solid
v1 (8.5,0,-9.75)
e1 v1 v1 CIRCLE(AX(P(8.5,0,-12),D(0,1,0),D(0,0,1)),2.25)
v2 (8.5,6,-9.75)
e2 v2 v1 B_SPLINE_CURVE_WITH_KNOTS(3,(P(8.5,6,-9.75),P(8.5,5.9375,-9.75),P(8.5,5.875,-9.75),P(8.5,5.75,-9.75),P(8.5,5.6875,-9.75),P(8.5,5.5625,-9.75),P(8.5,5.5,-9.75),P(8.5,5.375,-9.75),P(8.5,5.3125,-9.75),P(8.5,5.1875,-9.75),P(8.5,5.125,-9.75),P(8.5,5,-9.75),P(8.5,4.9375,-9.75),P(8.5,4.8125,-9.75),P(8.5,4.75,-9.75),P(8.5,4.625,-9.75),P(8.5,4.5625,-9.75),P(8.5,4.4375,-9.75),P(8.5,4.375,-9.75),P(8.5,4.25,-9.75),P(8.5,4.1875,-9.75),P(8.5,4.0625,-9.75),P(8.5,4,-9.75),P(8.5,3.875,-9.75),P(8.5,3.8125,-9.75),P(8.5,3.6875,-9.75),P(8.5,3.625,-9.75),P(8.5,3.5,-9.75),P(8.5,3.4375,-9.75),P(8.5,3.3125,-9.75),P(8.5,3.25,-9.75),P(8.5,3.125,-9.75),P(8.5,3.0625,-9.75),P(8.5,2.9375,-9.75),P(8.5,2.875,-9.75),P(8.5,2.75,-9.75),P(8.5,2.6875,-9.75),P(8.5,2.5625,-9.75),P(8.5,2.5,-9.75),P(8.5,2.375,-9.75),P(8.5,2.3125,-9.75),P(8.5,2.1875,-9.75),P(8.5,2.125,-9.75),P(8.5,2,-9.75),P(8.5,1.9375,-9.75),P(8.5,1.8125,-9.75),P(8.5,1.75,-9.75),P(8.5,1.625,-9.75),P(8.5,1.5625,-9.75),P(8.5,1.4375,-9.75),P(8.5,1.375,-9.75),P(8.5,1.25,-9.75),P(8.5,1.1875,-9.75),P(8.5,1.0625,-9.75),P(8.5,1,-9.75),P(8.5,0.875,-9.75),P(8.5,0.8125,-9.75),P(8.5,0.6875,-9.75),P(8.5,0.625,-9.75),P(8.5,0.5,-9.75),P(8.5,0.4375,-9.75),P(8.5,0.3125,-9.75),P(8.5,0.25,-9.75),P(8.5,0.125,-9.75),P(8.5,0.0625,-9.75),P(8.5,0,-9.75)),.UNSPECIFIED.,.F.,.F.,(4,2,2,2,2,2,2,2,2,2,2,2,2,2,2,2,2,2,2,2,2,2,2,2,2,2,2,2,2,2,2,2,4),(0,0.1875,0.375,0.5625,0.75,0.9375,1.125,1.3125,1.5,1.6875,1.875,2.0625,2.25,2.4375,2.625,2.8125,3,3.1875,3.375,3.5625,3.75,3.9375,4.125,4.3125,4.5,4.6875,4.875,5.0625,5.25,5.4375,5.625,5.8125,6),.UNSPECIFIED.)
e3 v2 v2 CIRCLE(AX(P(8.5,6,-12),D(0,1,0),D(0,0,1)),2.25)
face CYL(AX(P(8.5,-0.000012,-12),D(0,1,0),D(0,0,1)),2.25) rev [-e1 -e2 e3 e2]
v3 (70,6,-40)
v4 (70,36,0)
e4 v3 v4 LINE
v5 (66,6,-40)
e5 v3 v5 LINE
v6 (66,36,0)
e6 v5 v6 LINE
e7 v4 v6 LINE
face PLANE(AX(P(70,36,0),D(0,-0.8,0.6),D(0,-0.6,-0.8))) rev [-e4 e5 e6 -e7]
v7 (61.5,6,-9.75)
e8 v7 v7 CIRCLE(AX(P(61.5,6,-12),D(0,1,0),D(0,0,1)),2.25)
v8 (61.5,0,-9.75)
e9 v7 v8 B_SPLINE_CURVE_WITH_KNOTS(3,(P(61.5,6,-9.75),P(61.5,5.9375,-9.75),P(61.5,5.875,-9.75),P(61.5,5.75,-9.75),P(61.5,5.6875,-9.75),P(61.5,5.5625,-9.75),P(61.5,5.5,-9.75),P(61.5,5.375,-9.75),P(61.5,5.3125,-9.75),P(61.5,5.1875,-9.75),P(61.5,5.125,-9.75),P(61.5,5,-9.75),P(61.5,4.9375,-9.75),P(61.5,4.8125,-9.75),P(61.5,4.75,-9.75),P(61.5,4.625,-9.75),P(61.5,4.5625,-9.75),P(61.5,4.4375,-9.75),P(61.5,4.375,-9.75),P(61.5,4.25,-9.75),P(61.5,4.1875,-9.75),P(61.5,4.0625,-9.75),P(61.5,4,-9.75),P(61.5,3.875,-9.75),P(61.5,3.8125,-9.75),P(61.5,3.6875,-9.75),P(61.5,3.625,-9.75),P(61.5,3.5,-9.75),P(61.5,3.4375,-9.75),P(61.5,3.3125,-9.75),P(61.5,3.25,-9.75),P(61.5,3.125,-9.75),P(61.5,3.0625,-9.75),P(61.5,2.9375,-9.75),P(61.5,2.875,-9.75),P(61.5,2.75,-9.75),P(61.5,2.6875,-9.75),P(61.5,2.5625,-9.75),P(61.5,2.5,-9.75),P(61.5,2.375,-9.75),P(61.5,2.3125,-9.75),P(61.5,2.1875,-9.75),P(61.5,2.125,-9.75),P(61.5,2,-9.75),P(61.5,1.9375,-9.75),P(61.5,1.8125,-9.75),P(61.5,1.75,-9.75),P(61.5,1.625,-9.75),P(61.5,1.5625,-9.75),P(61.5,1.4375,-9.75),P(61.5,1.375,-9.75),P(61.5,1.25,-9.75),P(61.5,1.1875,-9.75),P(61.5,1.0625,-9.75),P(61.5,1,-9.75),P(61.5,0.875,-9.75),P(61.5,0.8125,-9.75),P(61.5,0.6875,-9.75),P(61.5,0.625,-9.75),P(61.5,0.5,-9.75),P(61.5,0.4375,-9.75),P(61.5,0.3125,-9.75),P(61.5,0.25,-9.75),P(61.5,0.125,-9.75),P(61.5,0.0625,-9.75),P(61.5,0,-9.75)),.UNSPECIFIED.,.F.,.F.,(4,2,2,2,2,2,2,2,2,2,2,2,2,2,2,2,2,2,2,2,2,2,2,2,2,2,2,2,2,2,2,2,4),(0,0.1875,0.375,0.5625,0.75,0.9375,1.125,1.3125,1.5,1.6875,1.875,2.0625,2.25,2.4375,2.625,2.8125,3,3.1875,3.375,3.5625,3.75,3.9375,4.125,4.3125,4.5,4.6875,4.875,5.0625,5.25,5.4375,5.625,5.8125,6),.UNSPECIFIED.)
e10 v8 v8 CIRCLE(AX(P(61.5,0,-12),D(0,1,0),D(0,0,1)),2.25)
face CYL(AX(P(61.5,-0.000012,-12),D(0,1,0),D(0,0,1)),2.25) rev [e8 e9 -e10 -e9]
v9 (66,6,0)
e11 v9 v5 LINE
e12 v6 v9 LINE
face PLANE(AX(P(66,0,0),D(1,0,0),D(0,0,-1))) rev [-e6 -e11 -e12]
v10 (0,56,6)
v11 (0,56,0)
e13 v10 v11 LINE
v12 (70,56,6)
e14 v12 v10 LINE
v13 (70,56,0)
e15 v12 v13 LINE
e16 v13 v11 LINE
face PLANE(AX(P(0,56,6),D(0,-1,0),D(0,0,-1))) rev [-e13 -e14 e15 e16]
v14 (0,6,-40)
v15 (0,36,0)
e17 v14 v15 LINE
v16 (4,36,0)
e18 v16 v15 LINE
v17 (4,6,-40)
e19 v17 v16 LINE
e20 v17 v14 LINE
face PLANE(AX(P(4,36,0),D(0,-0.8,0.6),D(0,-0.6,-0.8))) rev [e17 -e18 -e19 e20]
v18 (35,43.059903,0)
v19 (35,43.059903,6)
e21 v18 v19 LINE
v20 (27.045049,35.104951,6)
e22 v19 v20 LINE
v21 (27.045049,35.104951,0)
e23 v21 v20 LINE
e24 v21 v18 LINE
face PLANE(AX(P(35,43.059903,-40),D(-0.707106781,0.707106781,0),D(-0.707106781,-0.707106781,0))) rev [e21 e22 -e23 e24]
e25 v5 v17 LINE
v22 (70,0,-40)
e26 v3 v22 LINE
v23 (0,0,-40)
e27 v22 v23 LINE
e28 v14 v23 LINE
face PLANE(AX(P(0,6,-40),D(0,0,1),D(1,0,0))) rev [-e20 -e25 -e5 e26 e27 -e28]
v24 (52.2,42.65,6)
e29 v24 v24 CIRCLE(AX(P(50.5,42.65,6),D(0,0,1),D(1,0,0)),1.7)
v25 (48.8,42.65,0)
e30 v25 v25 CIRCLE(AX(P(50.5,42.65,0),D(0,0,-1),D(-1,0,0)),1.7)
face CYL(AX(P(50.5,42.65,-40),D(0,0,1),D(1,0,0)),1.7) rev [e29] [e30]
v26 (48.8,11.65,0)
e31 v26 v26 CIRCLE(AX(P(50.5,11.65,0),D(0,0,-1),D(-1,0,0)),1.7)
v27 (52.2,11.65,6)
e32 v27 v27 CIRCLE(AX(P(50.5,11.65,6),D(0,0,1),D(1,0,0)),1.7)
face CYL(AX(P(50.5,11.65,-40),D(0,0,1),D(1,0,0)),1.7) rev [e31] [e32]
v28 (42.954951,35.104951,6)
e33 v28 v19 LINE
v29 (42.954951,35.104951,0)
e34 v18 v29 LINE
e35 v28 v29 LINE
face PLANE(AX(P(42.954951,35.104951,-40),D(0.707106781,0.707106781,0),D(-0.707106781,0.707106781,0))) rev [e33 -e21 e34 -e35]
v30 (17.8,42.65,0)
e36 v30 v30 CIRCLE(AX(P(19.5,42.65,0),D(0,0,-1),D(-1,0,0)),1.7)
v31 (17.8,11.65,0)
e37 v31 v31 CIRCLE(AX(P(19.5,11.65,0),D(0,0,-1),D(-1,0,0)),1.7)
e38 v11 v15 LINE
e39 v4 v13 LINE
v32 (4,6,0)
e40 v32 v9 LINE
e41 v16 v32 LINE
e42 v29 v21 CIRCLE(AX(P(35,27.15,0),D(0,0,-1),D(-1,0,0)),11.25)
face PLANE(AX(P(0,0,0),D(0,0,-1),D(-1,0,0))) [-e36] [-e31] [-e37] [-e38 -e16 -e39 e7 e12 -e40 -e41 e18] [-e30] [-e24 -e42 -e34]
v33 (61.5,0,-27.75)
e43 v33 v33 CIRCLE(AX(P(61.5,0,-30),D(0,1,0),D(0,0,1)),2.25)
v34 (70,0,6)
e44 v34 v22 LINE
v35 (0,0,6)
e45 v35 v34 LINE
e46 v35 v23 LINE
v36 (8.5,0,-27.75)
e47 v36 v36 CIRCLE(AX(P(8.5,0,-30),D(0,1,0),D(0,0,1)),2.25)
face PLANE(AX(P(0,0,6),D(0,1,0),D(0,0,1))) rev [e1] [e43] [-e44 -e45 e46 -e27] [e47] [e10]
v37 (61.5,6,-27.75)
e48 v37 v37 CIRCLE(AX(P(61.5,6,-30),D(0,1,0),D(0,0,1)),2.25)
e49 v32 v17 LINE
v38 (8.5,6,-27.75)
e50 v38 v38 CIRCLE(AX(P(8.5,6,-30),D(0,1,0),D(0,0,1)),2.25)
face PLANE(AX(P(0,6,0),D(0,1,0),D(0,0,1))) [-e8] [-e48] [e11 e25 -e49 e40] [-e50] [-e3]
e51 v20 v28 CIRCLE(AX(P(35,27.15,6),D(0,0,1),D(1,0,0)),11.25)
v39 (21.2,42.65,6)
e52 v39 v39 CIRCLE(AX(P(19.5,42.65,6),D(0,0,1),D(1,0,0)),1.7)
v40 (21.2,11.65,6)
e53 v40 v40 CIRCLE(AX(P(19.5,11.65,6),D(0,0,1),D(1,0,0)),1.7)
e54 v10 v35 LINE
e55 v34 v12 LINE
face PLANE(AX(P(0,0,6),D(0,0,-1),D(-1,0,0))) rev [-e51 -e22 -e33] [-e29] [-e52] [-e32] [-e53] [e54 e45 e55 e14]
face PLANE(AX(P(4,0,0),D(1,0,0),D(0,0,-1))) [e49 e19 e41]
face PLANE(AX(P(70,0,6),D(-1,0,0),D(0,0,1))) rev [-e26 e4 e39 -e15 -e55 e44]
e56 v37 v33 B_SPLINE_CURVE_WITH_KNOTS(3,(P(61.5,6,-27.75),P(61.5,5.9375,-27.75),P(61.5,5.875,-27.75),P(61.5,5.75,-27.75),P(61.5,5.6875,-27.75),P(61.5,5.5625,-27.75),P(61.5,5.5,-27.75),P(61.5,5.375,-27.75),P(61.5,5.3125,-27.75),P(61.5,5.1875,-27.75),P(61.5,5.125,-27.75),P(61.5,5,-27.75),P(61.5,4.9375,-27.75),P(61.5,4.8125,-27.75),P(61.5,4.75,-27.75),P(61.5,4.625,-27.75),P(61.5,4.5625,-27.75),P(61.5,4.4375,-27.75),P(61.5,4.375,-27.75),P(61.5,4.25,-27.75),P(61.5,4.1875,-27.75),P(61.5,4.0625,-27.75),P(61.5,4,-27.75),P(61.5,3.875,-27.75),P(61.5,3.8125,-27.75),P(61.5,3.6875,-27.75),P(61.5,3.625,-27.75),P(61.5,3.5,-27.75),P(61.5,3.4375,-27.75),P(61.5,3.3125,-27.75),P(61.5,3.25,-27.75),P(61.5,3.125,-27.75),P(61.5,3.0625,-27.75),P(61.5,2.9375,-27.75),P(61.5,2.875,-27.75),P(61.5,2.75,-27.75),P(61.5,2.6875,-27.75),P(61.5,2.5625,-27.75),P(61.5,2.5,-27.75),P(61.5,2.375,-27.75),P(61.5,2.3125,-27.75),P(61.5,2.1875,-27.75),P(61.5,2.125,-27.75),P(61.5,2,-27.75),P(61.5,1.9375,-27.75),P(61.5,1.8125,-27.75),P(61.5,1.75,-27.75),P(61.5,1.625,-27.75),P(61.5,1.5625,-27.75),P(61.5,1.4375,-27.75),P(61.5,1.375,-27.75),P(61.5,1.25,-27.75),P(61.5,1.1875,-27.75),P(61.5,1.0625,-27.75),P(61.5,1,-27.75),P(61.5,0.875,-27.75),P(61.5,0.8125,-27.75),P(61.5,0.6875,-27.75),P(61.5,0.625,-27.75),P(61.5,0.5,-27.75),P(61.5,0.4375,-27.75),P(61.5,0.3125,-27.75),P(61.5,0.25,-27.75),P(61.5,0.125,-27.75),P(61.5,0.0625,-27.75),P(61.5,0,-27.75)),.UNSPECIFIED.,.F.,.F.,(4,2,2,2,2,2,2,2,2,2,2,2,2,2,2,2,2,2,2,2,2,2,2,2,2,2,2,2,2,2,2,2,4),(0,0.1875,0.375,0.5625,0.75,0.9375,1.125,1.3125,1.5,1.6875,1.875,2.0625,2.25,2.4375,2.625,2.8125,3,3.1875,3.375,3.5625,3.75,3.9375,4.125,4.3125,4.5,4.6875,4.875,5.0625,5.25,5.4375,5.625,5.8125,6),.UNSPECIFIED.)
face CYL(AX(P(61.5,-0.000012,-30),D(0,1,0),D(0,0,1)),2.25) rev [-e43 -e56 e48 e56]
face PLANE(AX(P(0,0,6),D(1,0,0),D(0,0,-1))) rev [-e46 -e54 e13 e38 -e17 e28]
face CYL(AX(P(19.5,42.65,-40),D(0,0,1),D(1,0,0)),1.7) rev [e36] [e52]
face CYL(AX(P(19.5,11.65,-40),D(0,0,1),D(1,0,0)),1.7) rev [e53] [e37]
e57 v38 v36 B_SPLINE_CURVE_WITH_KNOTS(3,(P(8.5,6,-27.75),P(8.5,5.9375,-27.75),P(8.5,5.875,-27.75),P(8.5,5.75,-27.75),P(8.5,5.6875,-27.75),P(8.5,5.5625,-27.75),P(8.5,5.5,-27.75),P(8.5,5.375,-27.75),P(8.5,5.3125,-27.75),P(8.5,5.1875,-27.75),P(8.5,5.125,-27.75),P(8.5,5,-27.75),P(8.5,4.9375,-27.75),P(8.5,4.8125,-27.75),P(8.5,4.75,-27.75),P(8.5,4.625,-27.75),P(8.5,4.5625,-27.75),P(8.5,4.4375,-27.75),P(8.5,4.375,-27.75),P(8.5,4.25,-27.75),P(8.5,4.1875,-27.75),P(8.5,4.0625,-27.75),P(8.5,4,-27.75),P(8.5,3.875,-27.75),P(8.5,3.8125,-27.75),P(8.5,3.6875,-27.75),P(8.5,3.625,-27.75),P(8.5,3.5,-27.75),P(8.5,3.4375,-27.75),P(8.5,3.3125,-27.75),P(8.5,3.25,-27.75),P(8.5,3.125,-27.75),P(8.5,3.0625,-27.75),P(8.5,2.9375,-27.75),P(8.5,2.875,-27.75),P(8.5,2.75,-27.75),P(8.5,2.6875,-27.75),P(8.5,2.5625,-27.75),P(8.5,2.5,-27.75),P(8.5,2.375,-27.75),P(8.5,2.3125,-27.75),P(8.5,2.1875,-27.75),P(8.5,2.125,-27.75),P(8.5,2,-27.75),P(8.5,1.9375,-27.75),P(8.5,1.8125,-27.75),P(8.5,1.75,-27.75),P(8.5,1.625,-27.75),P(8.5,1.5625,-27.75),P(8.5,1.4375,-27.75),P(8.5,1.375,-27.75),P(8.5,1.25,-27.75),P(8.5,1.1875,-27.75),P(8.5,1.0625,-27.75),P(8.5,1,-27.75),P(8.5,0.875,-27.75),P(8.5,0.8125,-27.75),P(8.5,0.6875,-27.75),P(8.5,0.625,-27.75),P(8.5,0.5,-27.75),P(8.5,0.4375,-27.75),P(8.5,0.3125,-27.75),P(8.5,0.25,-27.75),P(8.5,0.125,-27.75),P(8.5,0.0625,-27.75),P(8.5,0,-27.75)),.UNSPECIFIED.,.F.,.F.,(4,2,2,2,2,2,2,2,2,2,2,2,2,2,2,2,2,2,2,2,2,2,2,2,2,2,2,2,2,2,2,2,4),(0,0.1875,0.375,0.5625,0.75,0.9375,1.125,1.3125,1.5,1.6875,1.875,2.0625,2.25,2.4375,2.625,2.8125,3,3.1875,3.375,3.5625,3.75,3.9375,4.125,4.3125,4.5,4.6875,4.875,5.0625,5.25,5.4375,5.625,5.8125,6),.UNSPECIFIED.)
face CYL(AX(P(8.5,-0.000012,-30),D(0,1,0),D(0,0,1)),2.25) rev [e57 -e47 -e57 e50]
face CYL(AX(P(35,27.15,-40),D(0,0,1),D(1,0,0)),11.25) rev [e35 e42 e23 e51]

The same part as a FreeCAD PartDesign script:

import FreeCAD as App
import Part
import Sketcher
Q = App.Units.Quantity

doc = App.newDocument("Part")
body = doc.addObject("PartDesign::Body", "Body")

# Sketch on XY plane
sketch1 = body.newObject("Sketcher::SketchObject", "Sketch")
sketch1.AttachmentSupport = (doc.getObject("XY_Plane"), [""])
sketch1.MapMode = "FlatFace"
sketch1.addGeometry(Part.LineSegment(App.Vector(0, 56, 0), App.Vector(0, 0, 0)), False)
sketch1.addGeometry(Part.LineSegment(App.Vector(0, 0, 0), App.Vector(70, 0, 0)), False)
sketch1.addGeometry(Part.LineSegment(App.Vector(70, 0, 0), App.Vector(70, 56, 0)), False)
sketch1.addGeometry(Part.LineSegment(App.Vector(70, 56, 0), App.Vector(0, 56, 0)), False)
sketch1.addConstraint(Sketcher.Constraint("Coincident", 0, 2, 1, 1))
sketch1.addConstraint(Sketcher.Constraint("Coincident", 1, 2, 2, 1))
sketch1.addConstraint(Sketcher.Constraint("Coincident", 2, 2, 3, 1))
sketch1.addConstraint(Sketcher.Constraint("Coincident", 3, 2, 0, 1))
sketch1.addConstraint(Sketcher.Constraint("Vertical", 0))
sketch1.addConstraint(Sketcher.Constraint("Horizontal", 1))
sketch1.addConstraint(Sketcher.Constraint("Vertical", 2))
sketch1.addConstraint(Sketcher.Constraint("Horizontal", 3))
sketch1.addConstraint(Sketcher.Constraint("Coincident", 0, 2, -1, 1))
sketch1.addConstraint(Sketcher.Constraint("DistanceX", 1, 1, 1, 2, Q("70 mm")))
sketch1.addConstraint(Sketcher.Constraint("DistanceY", 0, 2, 0, 1, Q("56 mm")))
pad1 = body.newObject("PartDesign::Pad", "Pad")
pad1.Profile = sketch1
pad1.Length = 6

# Sketch on XZ plane
sketch2 = body.newObject("Sketcher::SketchObject", "Sketch001")
sketch2.AttachmentSupport = (doc.getObject("XZ_Plane"), [""])
sketch2.MapMode = "FlatFace"
sketch2.addGeometry(Part.LineSegment(App.Vector(0, -40, 0), App.Vector(0, 6, 0)), False)
sketch2.addGeometry(Part.LineSegment(App.Vector(0, 6, 0), App.Vector(70, 6, 0)), False)
sketch2.addGeometry(Part.LineSegment(App.Vector(70, 6, 0), App.Vector(70, -40, 0)), False)
sketch2.addGeometry(Part.LineSegment(App.Vector(70, -40, 0), App.Vector(0, -40, 0)), False)
sketch2.addConstraint(Sketcher.Constraint("Coincident", 0, 2, 1, 1))
sketch2.addConstraint(Sketcher.Constraint("Coincident", 1, 2, 2, 1))
sketch2.addConstraint(Sketcher.Constraint("Coincident", 2, 2, 3, 1))
sketch2.addConstraint(Sketcher.Constraint("Coincident", 3, 2, 0, 1))
sketch2.addConstraint(Sketcher.Constraint("Vertical", 0))
sketch2.addConstraint(Sketcher.Constraint("Horizontal", 1))
sketch2.addConstraint(Sketcher.Constraint("Vertical", 2))
sketch2.addConstraint(Sketcher.Constraint("Horizontal", 3))
sketch2.addConstraint(Sketcher.Constraint("PointOnObject", 0, 2, -2))
sketch2.addConstraint(Sketcher.Constraint("DistanceX", 1, 1, 1, 2, Q("70 mm")))
sketch2.addConstraint(Sketcher.Constraint("DistanceY", 0, 1, 0, 2, Q("46 mm")))
sketch2.addConstraint(Sketcher.Constraint("DistanceY", -1, 1, 0, 2, Q("6 mm")))
pad2 = body.newObject("PartDesign::Pad", "Pad001")
pad2.Profile = sketch2
pad2.Length = 6
pad2.Reversed = True

# Sketch on YZ plane
sketch3 = body.newObject("Sketcher::SketchObject", "Sketch002")
sketch3.AttachmentSupport = (doc.getObject("YZ_Plane"), [""])
sketch3.MapMode = "FlatFace"
sketch3.addGeometry(Part.LineSegment(App.Vector(6, 0, 0), App.Vector(6, -40, 0)), False)
sketch3.addGeometry(Part.LineSegment(App.Vector(6, -40, 0), App.Vector(36, 0, 0)), False)
sketch3.addGeometry(Part.LineSegment(App.Vector(36, 0, 0), App.Vector(6, 0, 0)), False)
sketch3.addConstraint(Sketcher.Constraint("Coincident", 0, 2, 1, 1))
sketch3.addConstraint(Sketcher.Constraint("Coincident", 1, 2, 2, 1))
sketch3.addConstraint(Sketcher.Constraint("Coincident", 2, 2, 0, 1))
sketch3.addConstraint(Sketcher.Constraint("Vertical", 0))
sketch3.addConstraint(Sketcher.Constraint("Horizontal", 2))
sketch3.addConstraint(Sketcher.Constraint("PointOnObject", 1, 2, -1))
sketch3.addConstraint(Sketcher.Constraint("DistanceX", 2, 2, 2, 1, Q("30 mm")))
sketch3.addConstraint(Sketcher.Constraint("DistanceY", 0, 2, 0, 1, Q("40 mm")))
sketch3.addConstraint(Sketcher.Constraint("DistanceX", -1, 1, 0, 2, Q("6 mm")))
pad3 = body.newObject("PartDesign::Pad", "Pad002")
pad3.Profile = sketch3
pad3.Length = 4

# Sketch on YZ plane
sketch4 = body.newObject("Sketcher::SketchObject", "Sketch003")
sketch4.AttachmentSupport = (doc.getObject("YZ_Plane"), [""])
sketch4.MapMode = "FlatFace"
sketch4.AttachmentOffset = App.Placement(App.Vector(0, 0, 66), App.Rotation())
sketch4.addGeometry(Part.LineSegment(App.Vector(6, 0, 0), App.Vector(6, -40, 0)), False)
sketch4.addGeometry(Part.LineSegment(App.Vector(6, -40, 0), App.Vector(36, 0, 0)), False)
sketch4.addGeometry(Part.LineSegment(App.Vector(36, 0, 0), App.Vector(6, 0, 0)), False)
sketch4.addConstraint(Sketcher.Constraint("Coincident", 0, 2, 1, 1))
sketch4.addConstraint(Sketcher.Constraint("Coincident", 1, 2, 2, 1))
sketch4.addConstraint(Sketcher.Constraint("Coincident", 2, 2, 0, 1))
sketch4.addConstraint(Sketcher.Constraint("Vertical", 0))
sketch4.addConstraint(Sketcher.Constraint("Horizontal", 2))
sketch4.addConstraint(Sketcher.Constraint("PointOnObject", 1, 2, -1))
sketch4.addConstraint(Sketcher.Constraint("DistanceX", 2, 2, 2, 1, Q("30 mm")))
sketch4.addConstraint(Sketcher.Constraint("DistanceY", 0, 2, 0, 1, Q("40 mm")))
sketch4.addConstraint(Sketcher.Constraint("DistanceX", -1, 1, 0, 2, Q("6 mm")))
pad4 = body.newObject("PartDesign::Pad", "Pad003")
pad4.Profile = sketch4
pad4.Length = 4

# Sketch on XY plane
sketch5 = body.newObject("Sketcher::SketchObject", "Sketch004")
sketch5.AttachmentSupport = (doc.getObject("XY_Plane"), [""])
sketch5.MapMode = "FlatFace"
sketch5.addGeometry(Part.Circle(App.Vector(35, 27.15, 0), App.Vector(0, 0, 1), 11.25), False)
sketch5.addGeometry(Part.Circle(App.Vector(19.5, 11.65, 0), App.Vector(0, 0, 1), 1.7), False)
sketch5.addGeometry(Part.Circle(App.Vector(19.5, 42.65, 0), App.Vector(0, 0, 1), 1.7), False)
sketch5.addGeometry(Part.Circle(App.Vector(50.5, 11.65, 0), App.Vector(0, 0, 1), 1.7), False)
sketch5.addGeometry(Part.Circle(App.Vector(50.5, 42.65, 0), App.Vector(0, 0, 1), 1.7), False)
sketch5.addConstraint(Sketcher.Constraint("Equal", 1, 2))
sketch5.addConstraint(Sketcher.Constraint("Equal", 2, 3))
sketch5.addConstraint(Sketcher.Constraint("Equal", 3, 4))
sketch5.addConstraint(Sketcher.Constraint("Horizontal", 1, 3, 3, 3))
sketch5.addConstraint(Sketcher.Constraint("Horizontal", 2, 3, 4, 3))
sketch5.addConstraint(Sketcher.Constraint("Vertical", 1, 3, 2, 3))
sketch5.addConstraint(Sketcher.Constraint("Vertical", 3, 3, 4, 3))
sketch5.addConstraint(Sketcher.Constraint("Diameter", 0, Q("22.5 mm")))
sketch5.addConstraint(Sketcher.Constraint("Diameter", 1, Q("3.4 mm")))
sketch5.addConstraint(Sketcher.Constraint("DistanceX", -1, 1, 0, 3, Q("35 mm")))
sketch5.addConstraint(Sketcher.Constraint("DistanceY", 1, 3, 2, 3, Q("31 mm")))
sketch5.addConstraint(Sketcher.Constraint("DistanceX", 1, 3, 3, 3, Q("31 mm")))
sketch5.addConstraint(Sketcher.Constraint("DistanceX", -1, 1, 1, 3, Q("19.5 mm")))
sketch5.addConstraint(Sketcher.Constraint("DistanceY", 1, 3, 0, 3, Q("15.5 mm")))
sketch5.addConstraint(Sketcher.Constraint("DistanceY", -1, 1, 0, 3, Q("27.15 mm")))
pocket1 = body.newObject("PartDesign::Pocket", "Pocket")
pocket1.Profile = sketch5
pocket1.Type = "ThroughAll"
pocket1.Midplane = True

# Sketch on XY plane
sketch6 = body.newObject("Sketcher::SketchObject", "Sketch005")
sketch6.AttachmentSupport = (doc.getObject("XY_Plane"), [""])
sketch6.MapMode = "FlatFace"
sketch6.addGeometry(Part.LineSegment(App.Vector(27.045049, 35.104951, 0), App.Vector(42.954951, 35.104951, 0)), False)
sketch6.addGeometry(Part.LineSegment(App.Vector(42.954951, 35.104951, 0), App.Vector(35, 43.059903, 0)), False)
sketch6.addGeometry(Part.LineSegment(App.Vector(35, 43.059903, 0), App.Vector(27.045049, 35.104951, 0)), False)
sketch6.addConstraint(Sketcher.Constraint("Coincident", 0, 2, 1, 1))
sketch6.addConstraint(Sketcher.Constraint("Coincident", 1, 2, 2, 1))
sketch6.addConstraint(Sketcher.Constraint("Coincident", 2, 2, 0, 1))
sketch6.addConstraint(Sketcher.Constraint("Horizontal", 0))
sketch6.addConstraint(Sketcher.Constraint("Perpendicular", 1, 2))
sketch6.addConstraint(Sketcher.Constraint("Equal", 1, 2))
sketch6.addConstraint(Sketcher.Constraint("DistanceX", -1, 1, 1, 2, Q("35 mm")))
sketch6.addConstraint(Sketcher.Constraint("Distance", 1, Q("11.25 mm")))
sketch6.addConstraint(Sketcher.Constraint("DistanceY", -1, 1, 0, 2, Q("35.104951 mm")))
pocket2 = body.newObject("PartDesign::Pocket", "Pocket001")
pocket2.Profile = sketch6
pocket2.Type = "ThroughAll"
pocket2.Midplane = True

# Sketch on XZ plane
sketch7 = body.newObject("Sketcher::SketchObject", "Sketch006")
sketch7.AttachmentSupport = (doc.getObject("XZ_Plane"), [""])
sketch7.MapMode = "FlatFace"
sketch7.addGeometry(Part.Circle(App.Vector(8.5, -12, 0), App.Vector(0, 0, 1), 2.25), False)
sketch7.addGeometry(Part.Circle(App.Vector(8.5, -30, 0), App.Vector(0, 0, 1), 2.25), False)
sketch7.addGeometry(Part.Circle(App.Vector(61.5, -12, 0), App.Vector(0, 0, 1), 2.25), False)
sketch7.addGeometry(Part.Circle(App.Vector(61.5, -30, 0), App.Vector(0, 0, 1), 2.25), False)
sketch7.addConstraint(Sketcher.Constraint("Equal", 0, 1))
sketch7.addConstraint(Sketcher.Constraint("Equal", 1, 2))
sketch7.addConstraint(Sketcher.Constraint("Equal", 2, 3))
sketch7.addConstraint(Sketcher.Constraint("Horizontal", 0, 3, 2, 3))
sketch7.addConstraint(Sketcher.Constraint("Horizontal", 1, 3, 3, 3))
sketch7.addConstraint(Sketcher.Constraint("Vertical", 0, 3, 1, 3))
sketch7.addConstraint(Sketcher.Constraint("Vertical", 2, 3, 3, 3))
sketch7.addConstraint(Sketcher.Constraint("Diameter", 0, Q("4.5 mm")))
sketch7.addConstraint(Sketcher.Constraint("DistanceY", 0, 3, -1, 1, Q("12 mm")))
sketch7.addConstraint(Sketcher.Constraint("DistanceY", 1, 3, -1, 1, Q("30 mm")))
sketch7.addConstraint(Sketcher.Constraint("DistanceX", 0, 3, 2, 3, Q("53 mm")))
sketch7.addConstraint(Sketcher.Constraint("DistanceX", -1, 1, 0, 3, Q("8.5 mm")))
pocket3 = body.newObject("PartDesign::Pocket", "Pocket002")
pocket3.Profile = sketch7
pocket3.Type = "ThroughAll"
pocket3.Midplane = True

doc.recompute()
